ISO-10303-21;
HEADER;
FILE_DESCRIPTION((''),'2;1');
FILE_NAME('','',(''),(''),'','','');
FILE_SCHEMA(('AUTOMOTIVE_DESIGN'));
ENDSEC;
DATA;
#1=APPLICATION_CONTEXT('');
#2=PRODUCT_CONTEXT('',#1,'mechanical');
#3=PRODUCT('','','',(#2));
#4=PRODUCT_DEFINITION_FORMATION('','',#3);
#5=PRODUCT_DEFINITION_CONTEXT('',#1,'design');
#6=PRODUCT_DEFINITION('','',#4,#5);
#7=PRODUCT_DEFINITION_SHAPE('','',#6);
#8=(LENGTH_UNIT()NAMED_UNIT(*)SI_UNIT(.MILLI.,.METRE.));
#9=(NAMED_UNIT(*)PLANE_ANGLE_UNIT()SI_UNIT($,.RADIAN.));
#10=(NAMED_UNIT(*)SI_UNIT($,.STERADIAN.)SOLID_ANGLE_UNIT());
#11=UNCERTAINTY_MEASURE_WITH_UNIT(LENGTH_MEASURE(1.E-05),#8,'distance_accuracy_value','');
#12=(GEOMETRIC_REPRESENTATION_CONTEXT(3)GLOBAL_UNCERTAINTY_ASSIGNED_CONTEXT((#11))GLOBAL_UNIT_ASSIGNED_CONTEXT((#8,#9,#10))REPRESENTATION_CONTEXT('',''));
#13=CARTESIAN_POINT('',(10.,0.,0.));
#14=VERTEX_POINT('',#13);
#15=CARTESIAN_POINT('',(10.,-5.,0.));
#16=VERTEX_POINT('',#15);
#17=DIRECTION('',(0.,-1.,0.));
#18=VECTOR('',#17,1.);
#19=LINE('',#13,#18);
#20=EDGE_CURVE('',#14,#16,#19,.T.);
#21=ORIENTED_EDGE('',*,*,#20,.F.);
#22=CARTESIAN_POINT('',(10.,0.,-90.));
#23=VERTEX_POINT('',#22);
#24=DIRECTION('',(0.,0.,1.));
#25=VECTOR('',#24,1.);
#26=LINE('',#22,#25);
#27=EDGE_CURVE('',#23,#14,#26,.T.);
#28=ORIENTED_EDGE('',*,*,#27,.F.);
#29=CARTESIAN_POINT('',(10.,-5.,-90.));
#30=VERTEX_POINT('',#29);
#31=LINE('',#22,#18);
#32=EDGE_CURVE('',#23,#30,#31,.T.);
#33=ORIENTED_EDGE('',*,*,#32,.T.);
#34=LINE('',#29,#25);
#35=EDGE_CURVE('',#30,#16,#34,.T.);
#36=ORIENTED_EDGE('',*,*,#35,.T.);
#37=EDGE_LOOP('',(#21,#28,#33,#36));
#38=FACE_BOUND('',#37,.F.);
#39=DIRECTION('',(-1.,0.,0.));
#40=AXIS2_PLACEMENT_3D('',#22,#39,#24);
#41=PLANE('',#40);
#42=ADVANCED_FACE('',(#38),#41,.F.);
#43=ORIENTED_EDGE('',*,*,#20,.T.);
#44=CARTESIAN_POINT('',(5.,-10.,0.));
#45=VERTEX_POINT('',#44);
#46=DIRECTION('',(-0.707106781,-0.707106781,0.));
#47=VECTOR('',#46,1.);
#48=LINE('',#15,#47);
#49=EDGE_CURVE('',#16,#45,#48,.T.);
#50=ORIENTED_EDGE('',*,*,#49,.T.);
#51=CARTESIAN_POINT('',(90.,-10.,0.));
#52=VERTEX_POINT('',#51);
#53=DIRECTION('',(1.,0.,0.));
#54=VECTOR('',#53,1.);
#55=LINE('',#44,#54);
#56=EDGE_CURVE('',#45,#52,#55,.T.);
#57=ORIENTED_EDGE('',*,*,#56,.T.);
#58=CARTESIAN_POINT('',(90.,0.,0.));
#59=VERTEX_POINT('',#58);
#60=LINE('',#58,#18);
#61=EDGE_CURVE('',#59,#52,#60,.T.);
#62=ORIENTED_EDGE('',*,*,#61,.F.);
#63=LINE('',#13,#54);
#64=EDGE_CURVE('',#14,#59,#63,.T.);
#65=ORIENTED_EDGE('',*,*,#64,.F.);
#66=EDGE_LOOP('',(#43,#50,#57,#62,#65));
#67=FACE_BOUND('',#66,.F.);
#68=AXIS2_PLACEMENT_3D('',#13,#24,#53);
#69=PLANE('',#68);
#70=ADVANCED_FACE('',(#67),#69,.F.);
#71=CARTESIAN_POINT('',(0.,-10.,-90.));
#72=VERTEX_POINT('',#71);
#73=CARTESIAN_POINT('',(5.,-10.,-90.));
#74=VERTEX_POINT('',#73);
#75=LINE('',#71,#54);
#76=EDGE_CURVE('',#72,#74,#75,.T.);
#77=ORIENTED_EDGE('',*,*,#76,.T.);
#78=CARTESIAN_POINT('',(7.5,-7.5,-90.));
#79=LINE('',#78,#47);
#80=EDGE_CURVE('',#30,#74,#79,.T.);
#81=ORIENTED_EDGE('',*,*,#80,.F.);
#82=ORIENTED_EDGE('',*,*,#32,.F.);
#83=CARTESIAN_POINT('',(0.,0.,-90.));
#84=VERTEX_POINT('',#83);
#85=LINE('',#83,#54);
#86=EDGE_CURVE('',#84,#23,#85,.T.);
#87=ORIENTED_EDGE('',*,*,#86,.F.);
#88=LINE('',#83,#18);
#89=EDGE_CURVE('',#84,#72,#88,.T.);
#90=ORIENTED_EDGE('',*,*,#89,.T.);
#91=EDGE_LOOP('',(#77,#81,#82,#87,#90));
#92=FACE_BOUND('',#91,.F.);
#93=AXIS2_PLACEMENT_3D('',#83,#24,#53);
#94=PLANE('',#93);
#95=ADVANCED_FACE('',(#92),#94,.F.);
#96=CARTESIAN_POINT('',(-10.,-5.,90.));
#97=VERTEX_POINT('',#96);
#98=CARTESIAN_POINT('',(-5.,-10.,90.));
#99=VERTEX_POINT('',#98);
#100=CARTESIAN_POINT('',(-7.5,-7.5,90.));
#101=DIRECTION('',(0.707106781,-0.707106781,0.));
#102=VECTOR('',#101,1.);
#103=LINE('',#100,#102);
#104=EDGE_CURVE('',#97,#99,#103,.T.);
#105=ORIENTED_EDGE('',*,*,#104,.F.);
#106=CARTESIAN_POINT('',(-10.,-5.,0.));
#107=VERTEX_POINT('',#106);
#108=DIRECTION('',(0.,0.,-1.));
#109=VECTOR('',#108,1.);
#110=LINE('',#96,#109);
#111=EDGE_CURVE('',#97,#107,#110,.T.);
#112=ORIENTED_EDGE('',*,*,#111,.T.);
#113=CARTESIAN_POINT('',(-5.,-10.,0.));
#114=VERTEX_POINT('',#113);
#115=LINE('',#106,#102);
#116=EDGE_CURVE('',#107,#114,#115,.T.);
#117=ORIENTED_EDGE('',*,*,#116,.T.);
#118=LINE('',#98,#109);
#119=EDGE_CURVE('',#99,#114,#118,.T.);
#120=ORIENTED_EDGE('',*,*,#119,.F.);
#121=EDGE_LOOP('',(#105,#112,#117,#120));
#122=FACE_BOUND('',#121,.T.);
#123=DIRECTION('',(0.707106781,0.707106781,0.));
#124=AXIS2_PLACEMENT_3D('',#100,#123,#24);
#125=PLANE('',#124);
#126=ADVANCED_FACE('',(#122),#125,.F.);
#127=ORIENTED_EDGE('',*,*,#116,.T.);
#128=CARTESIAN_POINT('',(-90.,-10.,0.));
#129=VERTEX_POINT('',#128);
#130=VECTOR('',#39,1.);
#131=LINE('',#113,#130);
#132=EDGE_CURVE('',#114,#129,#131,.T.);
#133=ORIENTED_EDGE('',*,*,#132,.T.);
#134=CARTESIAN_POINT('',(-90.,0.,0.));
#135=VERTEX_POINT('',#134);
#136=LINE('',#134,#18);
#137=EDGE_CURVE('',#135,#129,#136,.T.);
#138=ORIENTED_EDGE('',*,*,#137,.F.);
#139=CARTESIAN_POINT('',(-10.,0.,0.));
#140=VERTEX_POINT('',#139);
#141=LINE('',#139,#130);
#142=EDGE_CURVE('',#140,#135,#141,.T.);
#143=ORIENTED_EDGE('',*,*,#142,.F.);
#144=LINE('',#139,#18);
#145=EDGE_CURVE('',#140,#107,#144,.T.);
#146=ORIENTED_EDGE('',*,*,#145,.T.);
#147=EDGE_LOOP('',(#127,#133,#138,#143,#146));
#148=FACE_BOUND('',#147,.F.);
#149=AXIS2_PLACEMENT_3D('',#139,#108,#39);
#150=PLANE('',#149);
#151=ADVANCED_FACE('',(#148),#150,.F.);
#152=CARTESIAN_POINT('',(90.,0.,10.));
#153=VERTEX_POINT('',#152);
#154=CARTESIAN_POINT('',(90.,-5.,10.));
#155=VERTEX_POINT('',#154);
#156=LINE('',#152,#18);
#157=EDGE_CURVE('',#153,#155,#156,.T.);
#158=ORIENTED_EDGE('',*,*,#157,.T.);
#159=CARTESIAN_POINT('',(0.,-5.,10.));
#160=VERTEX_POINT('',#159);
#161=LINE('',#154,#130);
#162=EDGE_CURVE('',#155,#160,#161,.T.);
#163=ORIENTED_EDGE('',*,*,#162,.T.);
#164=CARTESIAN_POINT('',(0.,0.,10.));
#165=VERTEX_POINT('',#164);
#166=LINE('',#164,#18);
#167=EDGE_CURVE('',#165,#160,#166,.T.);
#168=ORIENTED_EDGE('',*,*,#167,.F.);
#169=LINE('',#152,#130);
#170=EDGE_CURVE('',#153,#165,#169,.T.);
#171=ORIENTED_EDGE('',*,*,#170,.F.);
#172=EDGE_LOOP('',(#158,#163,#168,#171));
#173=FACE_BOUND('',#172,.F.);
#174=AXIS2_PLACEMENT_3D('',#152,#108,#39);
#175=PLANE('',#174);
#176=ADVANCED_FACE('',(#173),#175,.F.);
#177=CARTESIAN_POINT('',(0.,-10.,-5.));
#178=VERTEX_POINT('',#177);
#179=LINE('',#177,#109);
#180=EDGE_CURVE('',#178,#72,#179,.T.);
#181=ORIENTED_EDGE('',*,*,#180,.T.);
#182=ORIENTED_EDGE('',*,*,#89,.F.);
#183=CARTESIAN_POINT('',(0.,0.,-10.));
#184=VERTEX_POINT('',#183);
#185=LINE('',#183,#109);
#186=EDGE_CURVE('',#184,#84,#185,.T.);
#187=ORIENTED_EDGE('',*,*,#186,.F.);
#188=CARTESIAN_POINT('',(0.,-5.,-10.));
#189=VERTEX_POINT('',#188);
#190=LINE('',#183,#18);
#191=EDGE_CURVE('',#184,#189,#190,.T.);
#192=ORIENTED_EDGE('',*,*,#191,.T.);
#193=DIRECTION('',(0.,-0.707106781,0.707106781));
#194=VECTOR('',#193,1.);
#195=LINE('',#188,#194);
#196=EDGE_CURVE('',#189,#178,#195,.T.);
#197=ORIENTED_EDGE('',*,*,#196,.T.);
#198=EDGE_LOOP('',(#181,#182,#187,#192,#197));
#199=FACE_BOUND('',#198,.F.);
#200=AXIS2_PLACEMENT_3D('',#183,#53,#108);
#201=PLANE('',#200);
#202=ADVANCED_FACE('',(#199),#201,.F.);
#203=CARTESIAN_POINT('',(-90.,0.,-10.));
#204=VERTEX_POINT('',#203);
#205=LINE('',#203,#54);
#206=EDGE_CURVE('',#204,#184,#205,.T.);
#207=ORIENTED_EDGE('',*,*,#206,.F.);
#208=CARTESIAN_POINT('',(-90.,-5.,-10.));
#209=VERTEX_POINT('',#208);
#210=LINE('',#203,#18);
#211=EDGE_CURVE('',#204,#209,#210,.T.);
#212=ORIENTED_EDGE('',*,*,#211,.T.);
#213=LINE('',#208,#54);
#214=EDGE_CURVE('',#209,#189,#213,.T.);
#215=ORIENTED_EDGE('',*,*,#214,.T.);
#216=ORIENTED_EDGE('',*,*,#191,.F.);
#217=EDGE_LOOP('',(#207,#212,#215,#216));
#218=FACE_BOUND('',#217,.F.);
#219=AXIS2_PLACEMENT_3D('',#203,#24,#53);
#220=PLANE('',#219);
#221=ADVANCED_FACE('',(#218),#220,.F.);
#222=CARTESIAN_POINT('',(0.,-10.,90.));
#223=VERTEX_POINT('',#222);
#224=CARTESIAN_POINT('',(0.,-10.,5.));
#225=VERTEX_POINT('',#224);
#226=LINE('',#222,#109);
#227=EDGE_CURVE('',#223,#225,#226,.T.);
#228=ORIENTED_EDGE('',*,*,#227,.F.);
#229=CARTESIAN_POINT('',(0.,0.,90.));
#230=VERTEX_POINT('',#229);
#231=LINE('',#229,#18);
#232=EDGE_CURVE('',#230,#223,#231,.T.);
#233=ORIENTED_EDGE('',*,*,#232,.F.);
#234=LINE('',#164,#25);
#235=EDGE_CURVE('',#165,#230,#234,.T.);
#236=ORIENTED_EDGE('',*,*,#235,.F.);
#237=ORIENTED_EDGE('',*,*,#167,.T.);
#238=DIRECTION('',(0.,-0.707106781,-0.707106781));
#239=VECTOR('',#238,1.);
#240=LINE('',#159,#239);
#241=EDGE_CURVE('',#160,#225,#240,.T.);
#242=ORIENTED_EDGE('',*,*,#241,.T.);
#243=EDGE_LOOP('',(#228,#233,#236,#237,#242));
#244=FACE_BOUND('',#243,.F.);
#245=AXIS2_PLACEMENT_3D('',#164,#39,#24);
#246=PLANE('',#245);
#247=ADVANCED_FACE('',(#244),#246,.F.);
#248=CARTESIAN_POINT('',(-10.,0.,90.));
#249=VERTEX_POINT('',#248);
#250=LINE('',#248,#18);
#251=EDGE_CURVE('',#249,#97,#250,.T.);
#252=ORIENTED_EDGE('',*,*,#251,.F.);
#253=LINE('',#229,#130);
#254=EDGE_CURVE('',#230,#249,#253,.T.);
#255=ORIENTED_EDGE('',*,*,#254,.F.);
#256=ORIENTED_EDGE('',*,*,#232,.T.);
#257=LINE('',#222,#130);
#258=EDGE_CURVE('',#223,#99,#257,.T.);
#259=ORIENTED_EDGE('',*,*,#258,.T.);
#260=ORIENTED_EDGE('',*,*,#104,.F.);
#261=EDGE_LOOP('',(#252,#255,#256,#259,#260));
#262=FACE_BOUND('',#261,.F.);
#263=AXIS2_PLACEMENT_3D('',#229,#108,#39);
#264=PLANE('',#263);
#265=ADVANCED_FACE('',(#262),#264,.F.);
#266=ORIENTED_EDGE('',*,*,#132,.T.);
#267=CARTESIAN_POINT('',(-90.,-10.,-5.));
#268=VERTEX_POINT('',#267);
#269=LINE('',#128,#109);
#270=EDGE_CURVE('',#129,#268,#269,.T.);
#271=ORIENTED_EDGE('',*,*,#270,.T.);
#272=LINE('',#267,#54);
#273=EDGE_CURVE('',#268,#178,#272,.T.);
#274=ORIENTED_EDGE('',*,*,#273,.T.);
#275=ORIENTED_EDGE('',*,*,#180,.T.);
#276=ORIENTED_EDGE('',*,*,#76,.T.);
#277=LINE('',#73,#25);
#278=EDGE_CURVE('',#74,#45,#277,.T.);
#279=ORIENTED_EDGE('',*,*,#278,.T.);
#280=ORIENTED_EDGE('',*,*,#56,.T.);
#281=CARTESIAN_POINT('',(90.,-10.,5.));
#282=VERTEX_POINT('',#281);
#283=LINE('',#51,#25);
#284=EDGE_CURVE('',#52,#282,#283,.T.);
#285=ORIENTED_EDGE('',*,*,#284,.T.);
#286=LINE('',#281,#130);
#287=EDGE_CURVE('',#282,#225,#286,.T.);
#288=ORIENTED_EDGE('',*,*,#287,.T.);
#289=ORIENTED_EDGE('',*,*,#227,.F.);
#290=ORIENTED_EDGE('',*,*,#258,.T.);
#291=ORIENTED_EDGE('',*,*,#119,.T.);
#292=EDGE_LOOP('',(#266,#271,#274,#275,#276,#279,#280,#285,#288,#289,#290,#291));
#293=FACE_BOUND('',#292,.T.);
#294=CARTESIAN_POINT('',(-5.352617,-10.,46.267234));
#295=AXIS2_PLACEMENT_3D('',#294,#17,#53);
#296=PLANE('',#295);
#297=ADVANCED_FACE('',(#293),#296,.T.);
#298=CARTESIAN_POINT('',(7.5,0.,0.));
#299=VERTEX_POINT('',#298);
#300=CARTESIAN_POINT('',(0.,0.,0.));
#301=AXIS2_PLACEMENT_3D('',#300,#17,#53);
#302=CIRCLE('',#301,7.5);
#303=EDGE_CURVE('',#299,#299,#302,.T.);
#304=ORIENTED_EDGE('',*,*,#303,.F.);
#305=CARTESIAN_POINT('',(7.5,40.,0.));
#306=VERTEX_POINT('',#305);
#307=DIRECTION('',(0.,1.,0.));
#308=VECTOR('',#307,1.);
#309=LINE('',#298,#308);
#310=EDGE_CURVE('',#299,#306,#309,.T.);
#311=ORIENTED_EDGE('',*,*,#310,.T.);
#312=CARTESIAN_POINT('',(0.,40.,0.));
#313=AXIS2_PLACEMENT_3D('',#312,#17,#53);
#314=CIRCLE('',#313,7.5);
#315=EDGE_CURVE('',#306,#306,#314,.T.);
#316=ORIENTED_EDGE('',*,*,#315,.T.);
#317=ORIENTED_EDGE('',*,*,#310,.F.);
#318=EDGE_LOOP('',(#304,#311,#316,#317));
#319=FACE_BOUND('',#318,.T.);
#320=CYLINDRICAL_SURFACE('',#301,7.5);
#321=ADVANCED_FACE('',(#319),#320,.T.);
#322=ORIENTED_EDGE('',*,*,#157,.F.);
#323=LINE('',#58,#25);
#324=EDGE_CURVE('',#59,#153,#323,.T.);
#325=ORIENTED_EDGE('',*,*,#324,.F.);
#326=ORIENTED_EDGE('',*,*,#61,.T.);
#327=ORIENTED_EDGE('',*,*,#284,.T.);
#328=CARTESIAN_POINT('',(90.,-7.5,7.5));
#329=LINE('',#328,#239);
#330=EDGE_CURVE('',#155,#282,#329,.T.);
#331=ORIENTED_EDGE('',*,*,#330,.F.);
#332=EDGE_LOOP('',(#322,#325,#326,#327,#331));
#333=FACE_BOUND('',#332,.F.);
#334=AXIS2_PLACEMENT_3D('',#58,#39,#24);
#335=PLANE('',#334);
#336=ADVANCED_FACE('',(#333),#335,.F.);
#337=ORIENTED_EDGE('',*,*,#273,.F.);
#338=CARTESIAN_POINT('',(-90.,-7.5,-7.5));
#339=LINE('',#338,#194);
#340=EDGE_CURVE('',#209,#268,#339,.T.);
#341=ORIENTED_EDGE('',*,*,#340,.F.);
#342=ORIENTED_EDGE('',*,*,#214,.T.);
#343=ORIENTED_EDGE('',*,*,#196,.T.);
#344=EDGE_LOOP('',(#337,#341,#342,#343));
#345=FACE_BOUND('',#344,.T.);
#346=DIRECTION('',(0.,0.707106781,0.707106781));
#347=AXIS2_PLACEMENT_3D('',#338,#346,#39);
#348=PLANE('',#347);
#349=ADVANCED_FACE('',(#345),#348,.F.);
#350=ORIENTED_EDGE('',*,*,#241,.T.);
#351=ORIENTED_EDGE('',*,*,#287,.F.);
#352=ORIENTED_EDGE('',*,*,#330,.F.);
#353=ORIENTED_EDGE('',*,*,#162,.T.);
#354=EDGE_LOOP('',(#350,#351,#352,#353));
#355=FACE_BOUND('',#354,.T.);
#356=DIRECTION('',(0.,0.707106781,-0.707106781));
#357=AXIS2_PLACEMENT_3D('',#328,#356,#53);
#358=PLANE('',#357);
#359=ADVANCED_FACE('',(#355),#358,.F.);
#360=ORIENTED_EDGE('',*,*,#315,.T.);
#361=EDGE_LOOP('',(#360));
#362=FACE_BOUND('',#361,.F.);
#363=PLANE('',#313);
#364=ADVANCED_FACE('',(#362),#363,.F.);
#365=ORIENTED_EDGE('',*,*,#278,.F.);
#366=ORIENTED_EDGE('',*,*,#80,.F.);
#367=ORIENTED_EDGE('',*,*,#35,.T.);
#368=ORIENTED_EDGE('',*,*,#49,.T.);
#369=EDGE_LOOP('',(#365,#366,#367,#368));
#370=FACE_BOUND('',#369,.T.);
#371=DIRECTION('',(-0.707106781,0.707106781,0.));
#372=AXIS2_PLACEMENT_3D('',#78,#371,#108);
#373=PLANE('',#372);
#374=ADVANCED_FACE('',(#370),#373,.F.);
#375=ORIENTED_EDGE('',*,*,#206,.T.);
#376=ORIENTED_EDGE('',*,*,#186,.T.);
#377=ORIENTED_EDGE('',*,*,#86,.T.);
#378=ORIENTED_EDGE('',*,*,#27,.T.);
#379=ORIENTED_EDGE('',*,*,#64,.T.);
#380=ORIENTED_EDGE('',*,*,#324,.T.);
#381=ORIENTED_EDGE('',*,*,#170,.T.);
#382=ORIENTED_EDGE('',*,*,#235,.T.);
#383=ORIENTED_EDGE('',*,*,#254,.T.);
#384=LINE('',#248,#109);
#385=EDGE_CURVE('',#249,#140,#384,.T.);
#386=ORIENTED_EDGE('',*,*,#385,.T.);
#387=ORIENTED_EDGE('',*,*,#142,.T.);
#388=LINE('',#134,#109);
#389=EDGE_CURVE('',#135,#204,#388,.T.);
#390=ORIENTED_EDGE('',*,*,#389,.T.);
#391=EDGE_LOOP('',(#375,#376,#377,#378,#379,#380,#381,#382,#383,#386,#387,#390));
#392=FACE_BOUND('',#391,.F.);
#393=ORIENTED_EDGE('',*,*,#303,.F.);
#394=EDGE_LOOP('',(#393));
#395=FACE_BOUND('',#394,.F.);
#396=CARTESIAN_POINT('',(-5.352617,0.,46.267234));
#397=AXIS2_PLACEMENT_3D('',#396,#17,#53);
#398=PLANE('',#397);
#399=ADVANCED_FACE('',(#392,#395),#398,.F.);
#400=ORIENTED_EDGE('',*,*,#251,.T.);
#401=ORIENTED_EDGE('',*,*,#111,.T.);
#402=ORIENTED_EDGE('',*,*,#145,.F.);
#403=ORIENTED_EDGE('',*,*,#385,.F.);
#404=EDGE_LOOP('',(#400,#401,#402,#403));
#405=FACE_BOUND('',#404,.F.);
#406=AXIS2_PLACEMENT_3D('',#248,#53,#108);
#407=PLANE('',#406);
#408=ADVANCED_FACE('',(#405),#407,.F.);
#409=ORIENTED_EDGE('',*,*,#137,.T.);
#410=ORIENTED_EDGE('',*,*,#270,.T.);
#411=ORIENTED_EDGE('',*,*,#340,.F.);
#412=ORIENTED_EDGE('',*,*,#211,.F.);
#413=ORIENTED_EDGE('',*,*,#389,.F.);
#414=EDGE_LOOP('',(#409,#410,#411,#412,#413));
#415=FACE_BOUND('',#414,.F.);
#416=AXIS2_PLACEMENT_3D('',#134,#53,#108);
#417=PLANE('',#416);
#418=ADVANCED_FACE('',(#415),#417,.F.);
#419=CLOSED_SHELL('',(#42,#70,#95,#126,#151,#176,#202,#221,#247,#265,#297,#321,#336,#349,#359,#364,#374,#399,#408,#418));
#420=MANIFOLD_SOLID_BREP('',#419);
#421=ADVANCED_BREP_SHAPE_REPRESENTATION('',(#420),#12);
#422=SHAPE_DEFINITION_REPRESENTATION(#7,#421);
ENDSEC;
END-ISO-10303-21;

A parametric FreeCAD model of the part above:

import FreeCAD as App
import Part
import Sketcher
from FreeCAD import Vector


def edges_at(feature, points):
    """Names of the edges that pass closest to the given points."""
    edges = feature.Shape.Edges
    near = lambda p: min(range(len(edges)), key=lambda i: edges[i].distToShape(Part.Vertex(*p))[0])
    return sorted({f"Edge{near(p) + 1}" for p in points})


def add_polygon(sketch, points):
    """Adds a closed chain of lines whose ends are joined by coincident constraints."""
    first, n = sketch.GeometryCount, len(points)
    for a, b in zip(points, points[1:] + points[:1]):
        sketch.addGeometry(Part.LineSegment(App.Vector(*a, 0), App.Vector(*b, 0)), False)
    for i in range(n):
        sketch.addConstraint(Sketcher.Constraint("Coincident", first + i, 2, first + (i + 1) % n, 1))

doc = App.newDocument("Part")
params = doc.addObject("Spreadsheet::Sheet", "Params")
for row, (alias, value) in enumerate([
    ("sketch1_width", "10 mm"),
    ("sketch1_width2", "80 mm"),
    ("pad1_length", "10 mm"),
    ("chamfer_size", "5 mm"),
    ("sketch2_diameter", "15 mm"),
    ("pad2_length", "40 mm"),
], start=1):
    params.set(f"A{row}", alias)
    params.set(f"B{row}", "=" + value)
    params.setAlias(f"B{row}", alias)

body = doc.addObject("PartDesign::Body", "Body")

sketch1 = body.newObject("Sketcher::SketchObject", "Sketch")
sketch1.AttachmentSupport = (doc.getObject("XZ_Plane"), [""])
sketch1.MapMode = "FlatFace"
add_polygon(sketch1, [(0, 10), (0, 90), (-10, 90), (-10, 0), (-90, 0), (-90, -10), (0, -10), (0, -90), (10, -90), (10, 0), (90, 0), (90, 10)])
sketch1.addConstraint([
    Sketcher.Constraint("Vertical", 0),
    Sketcher.Constraint("Horizontal", 1),
    Sketcher.Constraint("Vertical", 2),
    Sketcher.Constraint("Horizontal", 3),
    Sketcher.Constraint("Vertical", 4),
    Sketcher.Constraint("Horizontal", 5),
    Sketcher.Constraint("Vertical", 6),
    Sketcher.Constraint("Horizontal", 7),
    Sketcher.Constraint("Vertical", 8),
    Sketcher.Constraint("Horizontal", 9),
    Sketcher.Constraint("Vertical", 10),
    Sketcher.Constraint("Horizontal", 11),
    Sketcher.Constraint("Symmetric", 0, 2, 6, 2, -1, 1),
    Sketcher.Constraint("Symmetric", 2, 2, 8, 2, -1, 1),
    Sketcher.Constraint("Symmetric", 4, 2, 10, 2, -1, 1),
    Sketcher.Constraint("PointOnObject", 0, 2, -2),
    Sketcher.Constraint("PointOnObject", 2, 2, -1),
    Sketcher.Constraint("Equal", 9, 0),
    Sketcher.Constraint("Equal", 11, 2),
    Sketcher.Constraint("DistanceX", 1, 2, 1, 1, 10.0),
    Sketcher.Constraint("DistanceX", 3, 2, 3, 1, 80.0),
])
sketch1.setExpression("Constraints[31]", "Params.sketch1_width")
sketch1.setExpression("Constraints[32]", "Params.sketch1_width2")
pad1 = body.newObject("PartDesign::Pad", "Pad")
pad1.Profile = sketch1
pad1.setExpression("Length", "Params.pad1_length")
doc.recompute()

chamfer = body.newObject("PartDesign::Chamfer", "Chamfer")
chamfer.Base = (pad1, edges_at(pad1, [
    (-10, -10, 45),
    (-45, -10, -10),
    (10, -10, -45),
    (45, -10, 10),
]))
chamfer.setExpression("Size", "Params.chamfer_size")

sketch2 = body.newObject("Sketcher::SketchObject", "Sketch001")
sketch2.AttachmentSupport = (doc.getObject("XZ_Plane"), [""])
sketch2.MapMode = "FlatFace"
sketch2.addGeometry(Part.Circle(Vector(0, 0, 0), Vector(0, 0, 1), 7.5), False)
sketch2.addConstraint([
    Sketcher.Constraint("Coincident", 0, 3, -1, 1),
    Sketcher.Constraint("Diameter", 0, 15.0),
])
sketch2.setExpression("Constraints[1]", "Params.sketch2_diameter")
pad2 = body.newObject("PartDesign::Pad", "Pad001")
pad2.Profile = sketch2
pad2.setExpression("Length", "Params.pad2_length")
pad2.Reversed = True

doc.recompute()
